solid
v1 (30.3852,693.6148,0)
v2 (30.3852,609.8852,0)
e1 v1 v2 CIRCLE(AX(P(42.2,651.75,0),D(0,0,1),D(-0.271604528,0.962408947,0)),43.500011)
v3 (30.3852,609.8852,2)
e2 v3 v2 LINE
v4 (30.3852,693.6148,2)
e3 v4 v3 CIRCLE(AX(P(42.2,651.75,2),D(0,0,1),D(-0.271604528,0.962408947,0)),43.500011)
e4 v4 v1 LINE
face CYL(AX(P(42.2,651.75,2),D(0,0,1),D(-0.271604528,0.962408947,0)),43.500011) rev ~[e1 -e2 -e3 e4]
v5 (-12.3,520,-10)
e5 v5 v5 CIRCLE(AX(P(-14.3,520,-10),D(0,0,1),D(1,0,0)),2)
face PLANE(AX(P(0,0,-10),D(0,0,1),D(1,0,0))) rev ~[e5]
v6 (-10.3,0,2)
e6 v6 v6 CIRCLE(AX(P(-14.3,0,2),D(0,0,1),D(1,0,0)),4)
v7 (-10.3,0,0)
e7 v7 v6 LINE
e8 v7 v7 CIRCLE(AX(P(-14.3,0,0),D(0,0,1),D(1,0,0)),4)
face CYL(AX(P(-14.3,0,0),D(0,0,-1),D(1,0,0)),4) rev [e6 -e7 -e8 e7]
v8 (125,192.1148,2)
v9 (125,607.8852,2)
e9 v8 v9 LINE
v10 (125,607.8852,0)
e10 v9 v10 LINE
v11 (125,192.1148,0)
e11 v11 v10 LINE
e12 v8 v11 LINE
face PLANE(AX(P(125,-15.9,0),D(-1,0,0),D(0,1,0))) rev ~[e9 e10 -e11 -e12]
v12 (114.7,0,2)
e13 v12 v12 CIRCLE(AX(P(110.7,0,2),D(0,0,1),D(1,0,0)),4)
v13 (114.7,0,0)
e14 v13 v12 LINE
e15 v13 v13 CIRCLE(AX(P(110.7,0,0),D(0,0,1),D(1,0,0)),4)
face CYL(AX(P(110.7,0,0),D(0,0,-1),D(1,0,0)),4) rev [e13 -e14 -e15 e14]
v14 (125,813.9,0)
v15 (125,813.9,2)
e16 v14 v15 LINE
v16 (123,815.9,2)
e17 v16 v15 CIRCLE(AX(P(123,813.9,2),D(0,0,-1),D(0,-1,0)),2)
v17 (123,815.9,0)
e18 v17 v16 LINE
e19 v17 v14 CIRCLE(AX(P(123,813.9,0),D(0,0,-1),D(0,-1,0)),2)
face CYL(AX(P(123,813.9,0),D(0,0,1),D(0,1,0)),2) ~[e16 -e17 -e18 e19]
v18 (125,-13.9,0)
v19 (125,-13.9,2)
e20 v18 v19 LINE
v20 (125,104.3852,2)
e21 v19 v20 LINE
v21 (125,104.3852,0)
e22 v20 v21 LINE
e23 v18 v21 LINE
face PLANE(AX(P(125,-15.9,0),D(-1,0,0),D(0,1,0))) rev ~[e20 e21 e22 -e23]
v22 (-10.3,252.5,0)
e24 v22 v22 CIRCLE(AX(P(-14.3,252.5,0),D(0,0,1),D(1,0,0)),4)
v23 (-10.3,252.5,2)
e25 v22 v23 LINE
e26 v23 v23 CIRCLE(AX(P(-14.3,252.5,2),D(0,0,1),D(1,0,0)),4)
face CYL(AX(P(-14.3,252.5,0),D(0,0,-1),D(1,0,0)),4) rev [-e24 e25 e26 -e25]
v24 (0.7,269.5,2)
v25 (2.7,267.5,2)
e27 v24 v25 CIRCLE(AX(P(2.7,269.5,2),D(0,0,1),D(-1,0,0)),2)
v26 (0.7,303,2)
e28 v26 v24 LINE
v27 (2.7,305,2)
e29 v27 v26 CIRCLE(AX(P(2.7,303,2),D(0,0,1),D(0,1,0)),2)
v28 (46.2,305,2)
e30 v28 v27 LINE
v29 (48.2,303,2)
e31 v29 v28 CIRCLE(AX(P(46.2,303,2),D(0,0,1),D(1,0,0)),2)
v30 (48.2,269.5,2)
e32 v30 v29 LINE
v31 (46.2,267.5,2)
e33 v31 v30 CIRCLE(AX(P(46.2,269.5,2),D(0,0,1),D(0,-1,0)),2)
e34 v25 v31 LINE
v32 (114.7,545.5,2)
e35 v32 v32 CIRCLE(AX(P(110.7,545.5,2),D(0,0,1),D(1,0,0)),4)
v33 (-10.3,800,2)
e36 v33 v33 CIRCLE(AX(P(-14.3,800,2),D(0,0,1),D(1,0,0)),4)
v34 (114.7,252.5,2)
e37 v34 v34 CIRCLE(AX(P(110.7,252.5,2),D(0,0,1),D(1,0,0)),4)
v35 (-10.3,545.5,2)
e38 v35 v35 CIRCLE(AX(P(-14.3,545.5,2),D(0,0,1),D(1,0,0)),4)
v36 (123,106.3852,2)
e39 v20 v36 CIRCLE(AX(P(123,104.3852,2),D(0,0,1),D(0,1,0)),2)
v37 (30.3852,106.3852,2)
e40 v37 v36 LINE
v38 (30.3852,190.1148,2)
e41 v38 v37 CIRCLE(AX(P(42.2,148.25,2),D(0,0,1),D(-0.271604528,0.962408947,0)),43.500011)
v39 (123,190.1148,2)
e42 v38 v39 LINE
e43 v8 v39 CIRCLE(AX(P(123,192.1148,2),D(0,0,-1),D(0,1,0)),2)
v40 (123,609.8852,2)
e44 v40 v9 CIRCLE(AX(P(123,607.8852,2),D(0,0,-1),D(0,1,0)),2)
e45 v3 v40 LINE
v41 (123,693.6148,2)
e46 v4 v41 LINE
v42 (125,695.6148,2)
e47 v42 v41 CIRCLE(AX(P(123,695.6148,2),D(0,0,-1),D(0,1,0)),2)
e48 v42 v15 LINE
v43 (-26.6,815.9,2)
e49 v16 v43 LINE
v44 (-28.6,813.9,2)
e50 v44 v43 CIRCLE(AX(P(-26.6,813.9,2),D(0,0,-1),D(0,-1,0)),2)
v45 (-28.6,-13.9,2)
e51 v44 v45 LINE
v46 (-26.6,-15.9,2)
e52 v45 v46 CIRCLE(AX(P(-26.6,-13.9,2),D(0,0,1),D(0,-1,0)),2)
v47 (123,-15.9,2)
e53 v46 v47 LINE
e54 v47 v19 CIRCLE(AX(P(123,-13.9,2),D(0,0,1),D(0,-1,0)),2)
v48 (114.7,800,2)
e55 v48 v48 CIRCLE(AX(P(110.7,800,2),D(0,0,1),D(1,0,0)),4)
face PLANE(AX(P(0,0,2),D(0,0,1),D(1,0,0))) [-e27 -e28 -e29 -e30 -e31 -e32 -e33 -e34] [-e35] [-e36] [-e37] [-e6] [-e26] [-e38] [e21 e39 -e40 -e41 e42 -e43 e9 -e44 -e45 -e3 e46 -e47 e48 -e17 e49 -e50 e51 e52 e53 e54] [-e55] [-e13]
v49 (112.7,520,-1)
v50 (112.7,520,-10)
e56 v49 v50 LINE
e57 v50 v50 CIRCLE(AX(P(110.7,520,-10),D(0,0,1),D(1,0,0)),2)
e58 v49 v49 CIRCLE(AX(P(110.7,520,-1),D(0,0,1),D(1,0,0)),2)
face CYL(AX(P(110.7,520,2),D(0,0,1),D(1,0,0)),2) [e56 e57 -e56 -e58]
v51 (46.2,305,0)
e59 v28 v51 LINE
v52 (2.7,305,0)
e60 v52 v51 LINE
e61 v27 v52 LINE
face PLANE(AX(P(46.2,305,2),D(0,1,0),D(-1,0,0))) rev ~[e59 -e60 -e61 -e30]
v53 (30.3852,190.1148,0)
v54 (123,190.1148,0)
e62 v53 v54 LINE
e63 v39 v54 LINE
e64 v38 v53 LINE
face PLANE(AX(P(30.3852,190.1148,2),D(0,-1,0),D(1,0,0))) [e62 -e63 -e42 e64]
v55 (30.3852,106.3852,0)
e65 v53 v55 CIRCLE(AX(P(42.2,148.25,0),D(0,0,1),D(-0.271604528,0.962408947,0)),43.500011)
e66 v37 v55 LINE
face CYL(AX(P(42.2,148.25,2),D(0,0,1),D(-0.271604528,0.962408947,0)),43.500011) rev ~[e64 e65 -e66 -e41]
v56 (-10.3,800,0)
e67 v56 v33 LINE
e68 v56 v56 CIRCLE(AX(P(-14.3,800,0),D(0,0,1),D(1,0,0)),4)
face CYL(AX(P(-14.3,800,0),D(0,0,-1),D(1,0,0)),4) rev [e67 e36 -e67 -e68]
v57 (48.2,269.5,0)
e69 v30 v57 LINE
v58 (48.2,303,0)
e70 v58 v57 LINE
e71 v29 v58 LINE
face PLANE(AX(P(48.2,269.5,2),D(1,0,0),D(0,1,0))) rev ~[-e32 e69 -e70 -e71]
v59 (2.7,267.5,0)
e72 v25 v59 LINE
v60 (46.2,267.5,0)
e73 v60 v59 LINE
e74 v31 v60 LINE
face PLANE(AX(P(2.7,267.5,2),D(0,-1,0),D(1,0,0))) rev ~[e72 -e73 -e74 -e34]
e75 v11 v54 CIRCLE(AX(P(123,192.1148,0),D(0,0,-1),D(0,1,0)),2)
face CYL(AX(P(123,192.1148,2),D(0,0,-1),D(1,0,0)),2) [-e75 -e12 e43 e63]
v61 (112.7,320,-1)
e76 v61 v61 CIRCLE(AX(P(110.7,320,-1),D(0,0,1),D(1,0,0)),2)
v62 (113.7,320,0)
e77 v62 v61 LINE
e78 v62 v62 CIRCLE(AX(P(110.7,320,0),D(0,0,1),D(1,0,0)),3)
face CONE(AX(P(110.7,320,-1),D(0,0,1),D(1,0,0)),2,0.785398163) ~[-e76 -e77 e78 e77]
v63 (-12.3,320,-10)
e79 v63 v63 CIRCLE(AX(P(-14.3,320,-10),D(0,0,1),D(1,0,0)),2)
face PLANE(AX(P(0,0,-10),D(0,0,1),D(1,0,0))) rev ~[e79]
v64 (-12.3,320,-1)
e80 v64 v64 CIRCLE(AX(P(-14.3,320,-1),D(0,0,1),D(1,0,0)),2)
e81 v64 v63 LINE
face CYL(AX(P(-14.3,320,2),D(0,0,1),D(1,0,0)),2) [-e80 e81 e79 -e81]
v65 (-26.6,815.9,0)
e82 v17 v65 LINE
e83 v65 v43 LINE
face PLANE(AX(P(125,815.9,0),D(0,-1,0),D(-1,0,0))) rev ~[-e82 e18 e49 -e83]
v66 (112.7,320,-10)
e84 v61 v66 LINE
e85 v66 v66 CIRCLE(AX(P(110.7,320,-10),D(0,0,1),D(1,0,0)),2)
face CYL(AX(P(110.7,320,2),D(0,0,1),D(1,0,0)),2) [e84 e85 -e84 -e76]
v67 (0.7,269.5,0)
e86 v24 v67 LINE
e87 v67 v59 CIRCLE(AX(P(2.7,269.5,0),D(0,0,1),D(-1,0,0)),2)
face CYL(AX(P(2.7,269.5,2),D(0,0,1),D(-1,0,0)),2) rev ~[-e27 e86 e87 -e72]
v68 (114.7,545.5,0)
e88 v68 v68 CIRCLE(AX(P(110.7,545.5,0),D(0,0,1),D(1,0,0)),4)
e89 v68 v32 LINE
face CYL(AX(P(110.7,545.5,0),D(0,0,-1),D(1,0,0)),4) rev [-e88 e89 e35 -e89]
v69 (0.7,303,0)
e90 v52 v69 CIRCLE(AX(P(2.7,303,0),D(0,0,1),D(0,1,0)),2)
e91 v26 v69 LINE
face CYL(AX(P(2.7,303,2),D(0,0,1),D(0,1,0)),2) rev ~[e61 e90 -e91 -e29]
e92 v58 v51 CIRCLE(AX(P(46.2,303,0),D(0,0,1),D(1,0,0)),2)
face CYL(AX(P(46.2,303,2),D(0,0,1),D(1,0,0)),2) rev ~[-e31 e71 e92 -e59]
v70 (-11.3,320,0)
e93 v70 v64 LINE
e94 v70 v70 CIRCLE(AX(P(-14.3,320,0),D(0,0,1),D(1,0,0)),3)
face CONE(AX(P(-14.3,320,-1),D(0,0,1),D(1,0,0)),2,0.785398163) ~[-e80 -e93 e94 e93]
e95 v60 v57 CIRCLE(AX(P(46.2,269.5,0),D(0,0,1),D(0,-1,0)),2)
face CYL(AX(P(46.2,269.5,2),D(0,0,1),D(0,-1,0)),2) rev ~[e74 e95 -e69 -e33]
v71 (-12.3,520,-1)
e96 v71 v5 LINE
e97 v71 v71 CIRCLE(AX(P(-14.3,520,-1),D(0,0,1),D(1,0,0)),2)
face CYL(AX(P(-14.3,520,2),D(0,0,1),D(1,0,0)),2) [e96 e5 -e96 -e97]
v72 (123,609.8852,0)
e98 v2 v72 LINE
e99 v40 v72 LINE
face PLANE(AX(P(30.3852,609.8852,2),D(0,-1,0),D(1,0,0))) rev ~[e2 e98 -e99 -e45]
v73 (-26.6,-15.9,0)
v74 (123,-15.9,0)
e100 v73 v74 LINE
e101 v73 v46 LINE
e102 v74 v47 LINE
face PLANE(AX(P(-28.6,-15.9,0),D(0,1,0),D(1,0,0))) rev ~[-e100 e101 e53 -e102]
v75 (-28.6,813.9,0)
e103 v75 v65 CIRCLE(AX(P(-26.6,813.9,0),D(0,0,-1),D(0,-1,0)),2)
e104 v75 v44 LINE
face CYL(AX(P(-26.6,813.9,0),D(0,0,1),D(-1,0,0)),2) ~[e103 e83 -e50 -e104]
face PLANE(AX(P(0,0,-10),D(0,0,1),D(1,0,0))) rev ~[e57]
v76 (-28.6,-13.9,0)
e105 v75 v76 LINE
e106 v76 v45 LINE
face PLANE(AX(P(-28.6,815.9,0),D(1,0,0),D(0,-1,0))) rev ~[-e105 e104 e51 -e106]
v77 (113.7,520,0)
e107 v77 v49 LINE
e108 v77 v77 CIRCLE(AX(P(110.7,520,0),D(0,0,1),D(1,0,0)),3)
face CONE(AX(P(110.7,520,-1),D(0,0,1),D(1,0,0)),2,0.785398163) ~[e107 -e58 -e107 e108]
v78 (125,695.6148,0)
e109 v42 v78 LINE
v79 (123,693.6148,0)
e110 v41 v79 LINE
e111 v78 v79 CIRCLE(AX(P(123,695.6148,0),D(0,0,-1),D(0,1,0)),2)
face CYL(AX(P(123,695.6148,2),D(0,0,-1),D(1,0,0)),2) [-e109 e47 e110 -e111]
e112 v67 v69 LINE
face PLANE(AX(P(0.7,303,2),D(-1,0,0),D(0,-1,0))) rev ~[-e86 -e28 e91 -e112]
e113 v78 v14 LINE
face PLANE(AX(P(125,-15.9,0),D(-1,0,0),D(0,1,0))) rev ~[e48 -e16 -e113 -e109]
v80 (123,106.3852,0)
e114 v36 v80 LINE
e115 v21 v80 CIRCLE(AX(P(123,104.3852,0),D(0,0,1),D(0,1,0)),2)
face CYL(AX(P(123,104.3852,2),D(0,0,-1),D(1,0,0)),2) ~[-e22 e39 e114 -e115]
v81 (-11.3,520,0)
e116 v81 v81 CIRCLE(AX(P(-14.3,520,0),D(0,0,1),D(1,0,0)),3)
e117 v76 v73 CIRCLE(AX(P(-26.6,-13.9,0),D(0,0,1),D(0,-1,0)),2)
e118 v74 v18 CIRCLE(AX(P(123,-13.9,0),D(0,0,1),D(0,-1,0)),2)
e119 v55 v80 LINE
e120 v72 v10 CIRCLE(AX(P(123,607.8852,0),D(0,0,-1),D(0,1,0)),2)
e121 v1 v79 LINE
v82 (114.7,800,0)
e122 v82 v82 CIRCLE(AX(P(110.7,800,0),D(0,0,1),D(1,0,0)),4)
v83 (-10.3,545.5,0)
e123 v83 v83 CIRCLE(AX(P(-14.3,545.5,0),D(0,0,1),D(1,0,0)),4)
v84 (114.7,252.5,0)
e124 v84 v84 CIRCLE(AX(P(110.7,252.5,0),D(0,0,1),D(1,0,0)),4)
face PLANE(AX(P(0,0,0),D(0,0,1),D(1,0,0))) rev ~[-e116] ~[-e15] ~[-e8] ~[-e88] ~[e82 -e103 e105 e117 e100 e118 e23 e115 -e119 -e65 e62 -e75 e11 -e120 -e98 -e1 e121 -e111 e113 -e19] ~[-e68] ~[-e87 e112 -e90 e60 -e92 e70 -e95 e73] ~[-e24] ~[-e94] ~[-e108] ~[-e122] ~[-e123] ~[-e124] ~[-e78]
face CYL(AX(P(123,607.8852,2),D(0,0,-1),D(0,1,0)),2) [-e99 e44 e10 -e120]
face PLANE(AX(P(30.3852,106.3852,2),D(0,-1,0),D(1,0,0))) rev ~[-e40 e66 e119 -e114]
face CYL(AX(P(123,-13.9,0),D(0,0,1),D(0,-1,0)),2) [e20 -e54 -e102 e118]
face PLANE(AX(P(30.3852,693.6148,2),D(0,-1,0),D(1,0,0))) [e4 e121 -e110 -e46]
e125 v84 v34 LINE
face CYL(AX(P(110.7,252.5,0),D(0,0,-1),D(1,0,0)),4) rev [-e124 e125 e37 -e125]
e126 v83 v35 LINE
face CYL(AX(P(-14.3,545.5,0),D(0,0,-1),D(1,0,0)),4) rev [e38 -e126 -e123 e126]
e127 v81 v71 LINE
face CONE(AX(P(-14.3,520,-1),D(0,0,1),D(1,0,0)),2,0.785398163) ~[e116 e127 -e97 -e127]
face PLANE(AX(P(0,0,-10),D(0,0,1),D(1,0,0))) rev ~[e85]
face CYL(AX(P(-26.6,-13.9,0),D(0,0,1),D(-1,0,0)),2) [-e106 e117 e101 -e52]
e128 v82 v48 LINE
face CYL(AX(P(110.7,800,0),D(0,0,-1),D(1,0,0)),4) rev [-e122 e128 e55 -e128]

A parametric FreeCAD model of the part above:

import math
import FreeCAD as App
import Part
import Sketcher
from FreeCAD import Vector
Q = App.Units.Quantity


def edges_at(feature, points):
    """Names of the edges that pass closest to the given points."""
    edges = feature.Shape.Edges
    near = lambda p: min(range(len(edges)), key=lambda i: edges[i].distToShape(Part.Vertex(*p))[0])
    return sorted({f"Edge{near(p) + 1}" for p in points})


def add_polygon(sketch, points):
    """Adds a closed chain of lines whose ends are joined by coincident constraints."""
    first, n = sketch.GeometryCount, len(points)
    for a, b in zip(points, points[1:] + points[:1]):
        sketch.addGeometry(Part.LineSegment(App.Vector(*a, 0), App.Vector(*b, 0)), False)
    for i in range(n):
        sketch.addConstraint(Sketcher.Constraint("Coincident", first + i, 2, first + (i + 1) % n, 1))

doc = App.newDocument("Part")
body = doc.addObject("PartDesign::Body", "Body")

# Sketch on XY plane
sketch1 = doc.addObject("Sketcher::SketchObject", "Sketch")
body.addObject(sketch1)
sketch1.AttachmentSupport = (doc.XY_Plane, [""])
sketch1.MapMode = "FlatFace"
add_polygon(sketch1, [(-28.6, 815.9), (-28.6, -15.9), (125, -15.9), (125, 815.9)])  # lines 0-3
sketch1.addGeometry(Part.Circle(Vector(-14.3, 0, 0), Vector(0, 0, 1), 4), False)  # 4
sketch1.addGeometry(Part.Circle(Vector(-14.3, 252.5, 0), Vector(0, 0, 1), 4), False)  # 5
sketch1.addGeometry(Part.Circle(Vector(110.7, 0, 0), Vector(0, 0, 1), 4), False)  # 6
sketch1.addGeometry(Part.Circle(Vector(110.7, 252.5, 0), Vector(0, 0, 1), 4), False)  # 7
sketch1.addGeometry(Part.Circle(Vector(-14.3, 545.5, 0), Vector(0, 0, 1), 4), False)  # 8
sketch1.addGeometry(Part.Circle(Vector(-14.3, 800, 0), Vector(0, 0, 1), 4), False)  # 9
sketch1.addGeometry(Part.Circle(Vector(110.7, 545.5, 0), Vector(0, 0, 1), 4), False)  # 10
sketch1.addGeometry(Part.Circle(Vector(110.7, 800, 0), Vector(0, 0, 1), 4), False)  # 11
sketch1.addConstraint([
    Sketcher.Constraint("Vertical", 0),
    Sketcher.Constraint("Horizontal", 1),
    Sketcher.Constraint("Vertical", 2),
    Sketcher.Constraint("Horizontal", 3),
    Sketcher.Constraint("Equal", 4, 5),
    Sketcher.Constraint("Equal", 5, 6),
    Sketcher.Constraint("Equal", 6, 7),
    Sketcher.Constraint("Equal", 7, 8),
    Sketcher.Constraint("Equal", 8, 9),
    Sketcher.Constraint("Equal", 9, 10),
    Sketcher.Constraint("Equal", 10, 11),
    Sketcher.Constraint("PointOnObject", 4, 3, -1),
    Sketcher.Constraint("PointOnObject", 6, 3, -1),
    Sketcher.Constraint("Horizontal", 5, 3, 7, 3),
    Sketcher.Constraint("Horizontal", 8, 3, 10, 3),
    Sketcher.Constraint("Horizontal", 9, 3, 11, 3),
    Sketcher.Constraint("Vertical", 4, 3, 5, 3),
    Sketcher.Constraint("Vertical", 6, 3, 7, 3),
    Sketcher.Constraint("Vertical", 5, 3, 8, 3),
    Sketcher.Constraint("Vertical", 8, 3, 9, 3),
    Sketcher.Constraint("Vertical", 7, 3, 10, 3),
    Sketcher.Constraint("Vertical", 10, 3, 11, 3),
    Sketcher.Constraint("Diameter", 4, Q("8 mm")),
    Sketcher.Constraint("DistanceX", 1, 1, 1, 2, Q("153.6 mm")),
    Sketcher.Constraint("DistanceY", 0, 2, 0, 1, Q("831.8 mm")),
    Sketcher.Constraint("DistanceY", -1, 1, 9, 3, Q("800 mm")),
    Sketcher.Constraint("DistanceX", -1, 1, 1, 2, Q("125 mm")),
    Sketcher.Constraint("DistanceX", 4, 3, 6, 3, Q("125 mm")),
    Sketcher.Constraint("DistanceY", 5, 3, 8, 3, Q("293 mm")),
    Sketcher.Constraint("DistanceX", 4, 3, -1, 1, Q("14.3 mm")),
    Sketcher.Constraint("DistanceY", -1, 1, 5, 3, Q("252.5 mm")),
    Sketcher.Constraint("DistanceY", 0, 2, -1, 1, Q("15.9 mm")),
])
pad1 = doc.addObject("PartDesign::Pad", "Pad")
body.addObject(pad1)
pad1.Profile = sketch1
pad1.Length = 2

# Sketch on XY plane
sketch2 = doc.addObject("Sketcher::SketchObject", "Sketch001")
body.addObject(sketch2)
sketch2.AttachmentSupport = (doc.XY_Plane, [""])
sketch2.MapMode = "FlatFace"
sketch2.AttachmentOffset = App.Placement(Vector(0, 0, 2), App.Rotation())
sketch2.addGeometry([
    Part.LineSegment(Vector(125, 190.1148, 0), Vector(30.3852, 190.1148, 0)),  # 0
    Part.ArcOfCircle(Part.Circle(Vector(42.2, 148.25, 0), Vector(0, 0, 1), 43.500011), math.radians(105.759768), math.radians(254.240232)),  # 1
    Part.LineSegment(Vector(30.3852, 106.3852, 0), Vector(125, 106.3852, 0)),  # 2
    Part.LineSegment(Vector(125, 106.3852, 0), Vector(125, 190.1148, 0)),  # 3
    Part.LineSegment(Vector(125, 693.6148, 0), Vector(30.3852, 693.6148, 0)),  # 4
    Part.ArcOfCircle(Part.Circle(Vector(42.2, 651.75, 0), Vector(0, 0, 1), 43.500011), math.radians(105.759768), math.radians(254.240232)),  # 5
    Part.LineSegment(Vector(30.3852, 609.8852, 0), Vector(125, 609.8852, 0)),  # 6
    Part.LineSegment(Vector(125, 609.8852, 0), Vector(125, 693.6148, 0)),  # 7
], False)
sketch2.addConstraint([
    Sketcher.Constraint("Coincident", 0, 2, 1, 1),
    Sketcher.Constraint("Coincident", 1, 2, 2, 1),
    Sketcher.Constraint("Coincident", 2, 2, 3, 1),
    Sketcher.Constraint("Coincident", 3, 2, 0, 1),
    Sketcher.Constraint("Coincident", 4, 2, 5, 1),
    Sketcher.Constraint("Coincident", 5, 2, 6, 1),
    Sketcher.Constraint("Coincident", 6, 2, 7, 1),
    Sketcher.Constraint("Coincident", 7, 2, 4, 1),
    Sketcher.Constraint("Horizontal", 0),
    Sketcher.Constraint("Horizontal", 2),
    Sketcher.Constraint("Vertical", 3),
    Sketcher.Constraint("Horizontal", 4),
    Sketcher.Constraint("Horizontal", 6),
    Sketcher.Constraint("Vertical", 7),
    Sketcher.Constraint("Equal", 1, 5),
    Sketcher.Constraint("Vertical", 1, 3, 5, 3),
    Sketcher.Constraint("Vertical", 0, 2, 1, 2),
    Sketcher.Constraint("Vertical", 1, 2, 4, 2),
    Sketcher.Constraint("Vertical", 4, 2, 5, 2),
    Sketcher.Constraint("Vertical", 3, 2, 6, 2),
    Sketcher.Constraint("Radius", 1, Q("43.5 mm")),
    Sketcher.Constraint("DistanceY", 3, 1, 3, 2, Q("83.7296 mm")),
    Sketcher.Constraint("DistanceX", -1, 1, 2, 2, Q("125 mm")),
    Sketcher.Constraint("DistanceX", -1, 1, 1, 3, Q("42.2 mm")),
    Sketcher.Constraint("DistanceY", 1, 3, 5, 3, Q("503.5 mm")),
    Sketcher.Constraint("DistanceY", -1, 1, 1, 3, Q("148.25 mm")),
])
pocket1 = doc.addObject("PartDesign::Pocket", "Pocket")
body.addObject(pocket1)
pocket1.Profile = sketch2
pocket1.Length = 2
doc.recompute()

fillet = doc.addObject("PartDesign::Fillet", "Fillet")
body.addObject(fillet)
fillet.Base = (pocket1, edges_at(pocket1, [
    (-28.6, -15.9, 1),
    (125, -15.9, 1),
    (-28.6, 815.9, 1),
    (125, 815.9, 1),
    (125, 693.615, 1),
    (125, 609.885, 1),
    (125, 106.385, 1),
    (125, 190.115, 1),
]))
fillet.Radius = 2

# Sketch on XY plane
sketch3 = doc.addObject("Sketcher::SketchObject", "Sketch002")
body.addObject(sketch3)
sketch3.AttachmentSupport = (doc.XY_Plane, [""])
sketch3.MapMode = "FlatFace"
sketch3.AttachmentOffset = App.Placement(Vector(0, 0, 2), App.Rotation())
sketch3.addGeometry([
    Part.ArcOfCircle(Part.Circle(Vector(2.7, 269.5, 0), Vector(0, 0, 1), 2), math.radians(180), math.radians(270)),  # 0
    Part.LineSegment(Vector(2.7, 267.5, 0), Vector(46.2, 267.5, 0)),  # 1
    Part.ArcOfCircle(Part.Circle(Vector(46.2, 269.5, 0), Vector(0, 0, 1), 2), math.radians(-90), math.radians(0)),  # 2
    Part.LineSegment(Vector(48.2, 269.5, 0), Vector(48.2, 303, 0)),  # 3
    Part.ArcOfCircle(Part.Circle(Vector(46.2, 303, 0), Vector(0, 0, 1), 2), math.radians(0), math.radians(90)),  # 4
    Part.LineSegment(Vector(46.2, 305, 0), Vector(2.7, 305, 0)),  # 5
    Part.ArcOfCircle(Part.Circle(Vector(2.7, 303, 0), Vector(0, 0, 1), 2), math.radians(90), math.radians(180)),  # 6
    Part.LineSegment(Vector(0.7, 303, 0), Vector(0.7, 269.5, 0)),  # 7
], False)
sketch3.addConstraint([
    Sketcher.Constraint("Tangent", 0, 2, 1, 1),
    Sketcher.Constraint("Tangent", 1, 2, 2, 1),
    Sketcher.Constraint("Tangent", 2, 2, 3, 1),
    Sketcher.Constraint("Tangent", 3, 2, 4, 1),
    Sketcher.Constraint("Tangent", 4, 2, 5, 1),
    Sketcher.Constraint("Tangent", 5, 2, 6, 1),
    Sketcher.Constraint("Tangent", 6, 2, 7, 1),
    Sketcher.Constraint("Tangent", 7, 2, 0, 1),
    Sketcher.Constraint("Horizontal", 1),
    Sketcher.Constraint("Vertical", 3),
    Sketcher.Constraint("Horizontal", 5),
    Sketcher.Constraint("Vertical", 7),
    Sketcher.Constraint("Equal", 0, 2),
    Sketcher.Constraint("Equal", 2, 4),
    Sketcher.Constraint("Equal", 4, 6),
    Sketcher.Constraint("Radius", 0, Q("2 mm")),
    Sketcher.Constraint("DistanceX", 1, 1, 1, 2, Q("43.5 mm")),
    Sketcher.Constraint("DistanceY", 3, 1, 3, 2, Q("33.5 mm")),
    Sketcher.Constraint("DistanceY", -1, 1, 4, 3, Q("303 mm")),
    Sketcher.Constraint("DistanceX", -1, 1, 0, 3, Q("2.7 mm")),
])
pocket2 = doc.addObject("PartDesign::Pocket", "Pocket001")
body.addObject(pocket2)
pocket2.Profile = sketch3
pocket2.Type = "UpToFirst"

# Sketch on XY plane
sketch4 = doc.addObject("Sketcher::SketchObject", "Sketch003")
body.addObject(sketch4)
sketch4.AttachmentSupport = (doc.XY_Plane, [""])
sketch4.MapMode = "FlatFace"
sketch4.AttachmentOffset = App.Placement(Vector(0, 0, 2), App.Rotation())
sketch4.addGeometry([
    Part.Circle(Vector(-14.3, 520, 0), Vector(0, 0, 1), 2),
    Part.Circle(Vector(-14.3, 320, 0), Vector(0, 0, 1), 2),
    Part.Circle(Vector(110.7, 320, 0), Vector(0, 0, 1), 2),
    Part.Circle(Vector(110.7, 520, 0), Vector(0, 0, 1), 2),
], False)
sketch4.addConstraint([
    Sketcher.Constraint("Equal", 0, 1),
    Sketcher.Constraint("Equal", 1, 2),
    Sketcher.Constraint("Equal", 2, 3),
    Sketcher.Constraint("Horizontal", 1, 3, 2, 3),
    Sketcher.Constraint("Horizontal", 0, 3, 3, 3),
    Sketcher.Constraint("Vertical", 0, 3, 1, 3),
    Sketcher.Constraint("Vertical", 2, 3, 3, 3),
    Sketcher.Constraint("Diameter", 0, Q("4 mm")),
    Sketcher.Constraint("DistanceY", 1, 3, 0, 3, Q("200 mm")),
    Sketcher.Constraint("DistanceY", -1, 1, 0, 3, Q("520 mm")),
    Sketcher.Constraint("DistanceX", 1, 3, 2, 3, Q("125 mm")),
    Sketcher.Constraint("DistanceX", 0, 3, -1, 1, Q("14.3 mm")),
])
pad2 = doc.addObject("PartDesign::Pad", "Pad001")
body.addObject(pad2)
pad2.Profile = sketch4
pad2.Length = 12
pad2.Reversed = True
doc.recompute()

chamfer = doc.addObject("PartDesign::Chamfer", "Chamfer")
body.addObject(chamfer)
chamfer.Base = (pad2, edges_at(pad2, [(-16.3, 320, 0)]))
chamfer.Size = 1
doc.recompute()

chamfer2 = doc.addObject("PartDesign::Chamfer", "Chamfer001")
body.addObject(chamfer2)
chamfer2.Base = (chamfer, edges_at(chamfer, [(108.7, 320, 0)]))
chamfer2.Size = 1
doc.recompute()

chamfer3 = doc.addObject("PartDesign::Chamfer", "Chamfer002")
body.addObject(chamfer3)
chamfer3.Base = (chamfer2, edges_at(chamfer2, [(108.7, 520, 0)]))
chamfer3.Size = 1
doc.recompute()

chamfer4 = doc.addObject("PartDesign::Chamfer", "Chamfer003")
body.addObject(chamfer4)
chamfer4.Base = (chamfer3, edges_at(chamfer3, [(-16.3, 520, 0)]))
chamfer4.Size = 1

doc.recompute()
